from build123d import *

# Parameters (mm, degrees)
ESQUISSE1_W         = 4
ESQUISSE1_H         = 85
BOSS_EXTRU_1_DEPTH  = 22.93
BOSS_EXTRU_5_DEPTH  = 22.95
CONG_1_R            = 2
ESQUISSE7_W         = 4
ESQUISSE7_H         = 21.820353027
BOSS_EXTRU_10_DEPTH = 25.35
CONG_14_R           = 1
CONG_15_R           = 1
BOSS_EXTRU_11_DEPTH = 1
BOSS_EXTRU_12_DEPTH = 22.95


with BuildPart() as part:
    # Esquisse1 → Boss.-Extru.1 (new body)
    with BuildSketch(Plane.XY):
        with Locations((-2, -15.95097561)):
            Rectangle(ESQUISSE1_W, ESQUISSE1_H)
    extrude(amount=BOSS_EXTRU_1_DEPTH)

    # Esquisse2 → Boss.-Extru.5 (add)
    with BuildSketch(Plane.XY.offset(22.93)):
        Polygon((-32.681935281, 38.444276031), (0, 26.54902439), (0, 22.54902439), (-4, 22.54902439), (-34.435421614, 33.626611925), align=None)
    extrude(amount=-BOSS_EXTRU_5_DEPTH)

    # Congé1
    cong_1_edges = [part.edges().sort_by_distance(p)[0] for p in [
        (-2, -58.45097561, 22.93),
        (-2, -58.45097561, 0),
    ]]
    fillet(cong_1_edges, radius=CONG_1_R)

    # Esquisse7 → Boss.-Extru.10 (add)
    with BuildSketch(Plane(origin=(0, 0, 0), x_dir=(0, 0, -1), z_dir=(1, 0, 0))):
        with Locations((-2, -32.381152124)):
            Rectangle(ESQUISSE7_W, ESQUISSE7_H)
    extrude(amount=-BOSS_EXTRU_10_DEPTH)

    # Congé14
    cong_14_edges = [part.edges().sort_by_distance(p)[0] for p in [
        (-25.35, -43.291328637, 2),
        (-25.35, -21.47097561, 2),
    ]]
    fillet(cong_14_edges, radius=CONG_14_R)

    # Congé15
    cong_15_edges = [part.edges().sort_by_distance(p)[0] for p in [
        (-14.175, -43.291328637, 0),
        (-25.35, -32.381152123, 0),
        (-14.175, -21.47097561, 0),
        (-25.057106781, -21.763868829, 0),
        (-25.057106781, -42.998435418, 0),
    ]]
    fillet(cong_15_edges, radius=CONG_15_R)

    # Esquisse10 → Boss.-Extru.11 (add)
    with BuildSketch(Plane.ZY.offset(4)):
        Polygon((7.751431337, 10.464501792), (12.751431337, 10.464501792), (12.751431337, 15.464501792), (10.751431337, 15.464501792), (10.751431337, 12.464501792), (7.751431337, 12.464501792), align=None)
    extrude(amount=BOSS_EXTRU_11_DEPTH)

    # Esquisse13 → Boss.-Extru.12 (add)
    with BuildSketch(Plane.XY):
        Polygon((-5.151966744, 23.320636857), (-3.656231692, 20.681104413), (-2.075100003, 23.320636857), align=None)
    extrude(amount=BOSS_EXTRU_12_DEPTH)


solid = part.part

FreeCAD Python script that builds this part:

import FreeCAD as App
import Part
import Sketcher
from FreeCAD import Vector
Q = App.Units.Quantity


def edges_at(feature, points):
    """Names of the edges that pass closest to the given points."""
    edges = feature.Shape.Edges
    near = lambda p: min(range(len(edges)), key=lambda i: edges[i].distToShape(Part.Vertex(*p))[0])
    return sorted({f"Edge{near(p) + 1}" for p in points})

doc = App.newDocument("Part")
params = doc.addObject("Spreadsheet::Sheet", "Params")
for row, (alias, value) in enumerate([
    ("sketch1_width", "4 mm"),
    ("sketch1_height", "85 mm"),
    ("pad1_length", "22.93 mm"),
    ("sketch2_width", "4 mm"),
    ("pad2_length", "22.95 mm"),
    ("fillet_radius", "2 mm"),
    ("sketch3_height", "4 mm"),
    ("pad3_length", "25.35 mm"),
    ("fillet2_radius", "1 mm"),
    ("fillet3_radius", "1 mm"),
    ("sketch4_width", "5 mm"),
    ("sketch4_width2", "3 mm"),
    ("pad4_length", "1 mm"),
    ("pad5_length", "22.95 mm"),
], start=1):
    params.set(f"A{row}", alias)
    params.set(f"B{row}", "=" + value)
    params.setAlias(f"B{row}", alias)

body = doc.addObject("PartDesign::Body", "Body")

# Sketch on XY plane
sketch1 = doc.addObject("Sketcher::SketchObject", "Sketch")
body.addObject(sketch1)
sketch1.AttachmentSupport = (doc.XY_Plane, [""])
sketch1.MapMode = "FlatFace"
sketch1.addGeometry(Part.LineSegment(Vector(-4, 26.5, 0), Vector(-4, -58.5, 0)), False)
sketch1.addGeometry(Part.LineSegment(Vector(-4, -58.5, 0), Vector(0, -58.5, 0)), False)
sketch1.addGeometry(Part.LineSegment(Vector(0, -58.5, 0), Vector(0, 26.5, 0)), False)
sketch1.addGeometry(Part.LineSegment(Vector(0, 26.5, 0), Vector(-4, 26.5, 0)), False)
sketch1.addConstraint(Sketcher.Constraint("Coincident", 0, 2, 1, 1))
sketch1.addConstraint(Sketcher.Constraint("Coincident", 1, 2, 2, 1))
sketch1.addConstraint(Sketcher.Constraint("Coincident", 2, 2, 3, 1))
sketch1.addConstraint(Sketcher.Constraint("Coincident", 3, 2, 0, 1))
sketch1.addConstraint(Sketcher.Constraint("Vertical", 0))
sketch1.addConstraint(Sketcher.Constraint("Horizontal", 1))
sketch1.addConstraint(Sketcher.Constraint("Vertical", 2))
sketch1.addConstraint(Sketcher.Constraint("Horizontal", 3))
sketch1.addConstraint(Sketcher.Constraint("PointOnObject", 1, 2, -2))
sketch1.addConstraint(Sketcher.Constraint("DistanceX", 1, 1, 1, 2, Q("4 mm")))
sketch1.addConstraint(Sketcher.Constraint("DistanceY", 0, 2, 0, 1, Q("85 mm")))
sketch1.addConstraint(Sketcher.Constraint("DistanceY", 0, 2, -1, 1, Q("58.450976 mm")))
sketch1.setExpression("Constraints[9]", "Params.sketch1_width")
sketch1.setExpression("Constraints[10]", "Params.sketch1_height")
pad1 = doc.addObject("PartDesign::Pad", "Pad")
body.addObject(pad1)
pad1.Profile = sketch1
pad1.setExpression("Length", "Params.pad1_length")

# Sketch on XY plane
sketch2 = doc.addObject("Sketcher::SketchObject", "Sketch001")
body.addObject(sketch2)
sketch2.AttachmentSupport = (doc.XY_Plane, [""])
sketch2.MapMode = "FlatFace"
sketch2.AttachmentOffset = App.Placement(Vector(0, 0, 22.93), App.Rotation())
sketch2.addGeometry(Part.LineSegment(Vector(0, 26.5, 0), Vector(-32.7, 38.4, 0)), False)
sketch2.addGeometry(Part.LineSegment(Vector(-32.7, 38.4, 0), Vector(-34.4, 33.6, 0)), False)
sketch2.addGeometry(Part.LineSegment(Vector(-34.4, 33.6, 0), Vector(-4, 22.5, 0)), False)
sketch2.addGeometry(Part.LineSegment(Vector(-4, 22.5, 0), Vector(0, 22.5, 0)), False)
sketch2.addGeometry(Part.LineSegment(Vector(0, 22.5, 0), Vector(0, 26.5, 0)), False)
sketch2.addConstraint(Sketcher.Constraint("Coincident", 0, 2, 1, 1))
sketch2.addConstraint(Sketcher.Constraint("Coincident", 1, 2, 2, 1))
sketch2.addConstraint(Sketcher.Constraint("Coincident", 2, 2, 3, 1))
sketch2.addConstraint(Sketcher.Constraint("Coincident", 3, 2, 4, 1))
sketch2.addConstraint(Sketcher.Constraint("Coincident", 4, 2, 0, 1))
sketch2.addConstraint(Sketcher.Constraint("Horizontal", 3))
sketch2.addConstraint(Sketcher.Constraint("Vertical", 4))
sketch2.addConstraint(Sketcher.Constraint("PointOnObject", 3, 2, -2))
sketch2.addConstraint(Sketcher.Constraint("Perpendicular", 0, 1))
sketch2.addConstraint(Sketcher.Constraint("Perpendicular", 1, 2))
sketch2.addConstraint(Sketcher.Constraint("Equal", 3, 4))
sketch2.addConstraint(Sketcher.Constraint("DistanceX", 3, 1, 3, 2, Q("4 mm")))
sketch2.addConstraint(Sketcher.Constraint("Angle", 0, Q("160 deg")))
sketch2.addConstraint(Sketcher.Constraint("Distance", 2, Q("32.388699 mm")))
sketch2.addConstraint(Sketcher.Constraint("DistanceY", -1, 1, 1, 2, Q("33.626612 mm")))
sketch2.setExpression("Constraints[11]", "Params.sketch2_width")
pad2 = doc.addObject("PartDesign::Pad", "Pad001")
body.addObject(pad2)
pad2.Profile = sketch2
pad2.setExpression("Length", "Params.pad2_length")
pad2.Reversed = True
doc.recompute()

fillet = doc.addObject("PartDesign::Fillet", "Fillet")
body.addObject(fillet)
fillet.Base = (pad2, edges_at(pad2, [(-2, -58.451, 22.93), (-2, -58.451, 0)]))
fillet.setExpression("Radius", "Params.fillet_radius")

# Sketch on YZ plane
sketch3 = doc.addObject("Sketcher::SketchObject", "Sketch002")
body.addObject(sketch3)
sketch3.AttachmentSupport = (doc.YZ_Plane, [""])
sketch3.MapMode = "FlatFace"
sketch3.addGeometry(Part.LineSegment(Vector(-21.5, 4, 0), Vector(-43.3, 4, 0)), False)
sketch3.addGeometry(Part.LineSegment(Vector(-43.3, 4, 0), Vector(-43.3, 0, 0)), False)
sketch3.addGeometry(Part.LineSegment(Vector(-43.3, 0, 0), Vector(-21.5, 0, 0)), False)
sketch3.addGeometry(Part.LineSegment(Vector(-21.5, 0, 0), Vector(-21.5, 4, 0)), False)
sketch3.addConstraint(Sketcher.Constraint("Coincident", 0, 2, 1, 1))
sketch3.addConstraint(Sketcher.Constraint("Coincident", 1, 2, 2, 1))
sketch3.addConstraint(Sketcher.Constraint("Coincident", 2, 2, 3, 1))
sketch3.addConstraint(Sketcher.Constraint("Coincident", 3, 2, 0, 1))
sketch3.addConstraint(Sketcher.Constraint("Horizontal", 0))
sketch3.addConstraint(Sketcher.Constraint("Vertical", 1))
sketch3.addConstraint(Sketcher.Constraint("Horizontal", 2))
sketch3.addConstraint(Sketcher.Constraint("Vertical", 3))
sketch3.addConstraint(Sketcher.Constraint("PointOnObject", 1, 2, -1))
sketch3.addConstraint(Sketcher.Constraint("DistanceY", 1, 2, 1, 1, Q("4 mm")))
sketch3.addConstraint(Sketcher.Constraint("DistanceX", 0, 2, 0, 1, Q("21.820353 mm")))
sketch3.addConstraint(Sketcher.Constraint("DistanceX", 0, 2, -1, 1, Q("43.291329 mm")))
sketch3.setExpression("Constraints[9]", "Params.sketch3_height")
pad3 = doc.addObject("PartDesign::Pad", "Pad002")
body.addObject(pad3)
pad3.Profile = sketch3
pad3.setExpression("Length", "Params.pad3_length")
pad3.Reversed = True
doc.recompute()

fillet2 = doc.addObject("PartDesign::Fillet", "Fillet001")
body.addObject(fillet2)
fillet2.Base = (pad3, edges_at(pad3, [(-25.35, -43.291, 2), (-25.35, -21.471, 2)]))
fillet2.setExpression("Radius", "Params.fillet2_radius")
doc.recompute()

fillet3 = doc.addObject("PartDesign::Fillet", "Fillet002")
body.addObject(fillet3)
fillet3.Base = (fillet2, edges_at(fillet2, [
    (-14.175, -43.291, 0),
    (-25.35, -32.381, 0),
    (-14.175, -21.471, 0),
    (-25.057, -21.764, 0),
    (-25.057, -42.998, 0),
]))
fillet3.setExpression("Radius", "Params.fillet3_radius")

# Sketch on YZ plane
sketch4 = doc.addObject("Sketcher::SketchObject", "Sketch003")
body.addObject(sketch4)
sketch4.AttachmentSupport = (doc.YZ_Plane, [""])
sketch4.MapMode = "FlatFace"
sketch4.AttachmentOffset = App.Placement(Vector(0, 0, -4), App.Rotation())
sketch4.addGeometry(Part.LineSegment(Vector(10.5, 7.8, 0), Vector(10.5, 12.8, 0)), False)
sketch4.addGeometry(Part.LineSegment(Vector(10.5, 12.8, 0), Vector(15.5, 12.8, 0)), False)
sketch4.addGeometry(Part.LineSegment(Vector(15.5, 12.8, 0), Vector(15.5, 10.8, 0)), False)
sketch4.addGeometry(Part.LineSegment(Vector(15.5, 10.8, 0), Vector(12.5, 10.8, 0)), False)
sketch4.addGeometry(Part.LineSegment(Vector(12.5, 10.8, 0), Vector(12.5, 7.8, 0)), False)
sketch4.addGeometry(Part.LineSegment(Vector(12.5, 7.8, 0), Vector(10.5, 7.8, 0)), False)
sketch4.addConstraint(Sketcher.Constraint("Coincident", 0, 2, 1, 1))
sketch4.addConstraint(Sketcher.Constraint("Coincident", 1, 2, 2, 1))
sketch4.addConstraint(Sketcher.Constraint("Coincident", 2, 2, 3, 1))
sketch4.addConstraint(Sketcher.Constraint("Coincident", 3, 2, 4, 1))
sketch4.addConstraint(Sketcher.Constraint("Coincident", 4, 2, 5, 1))
sketch4.addConstraint(Sketcher.Constraint("Coincident", 5, 2, 0, 1))
sketch4.addConstraint(Sketcher.Constraint("Vertical", 0))
sketch4.addConstraint(Sketcher.Constraint("Horizontal", 1))
sketch4.addConstraint(Sketcher.Constraint("Vertical", 2))
sketch4.addConstraint(Sketcher.Constraint("Horizontal", 3))
sketch4.addConstraint(Sketcher.Constraint("Vertical", 4))
sketch4.addConstraint(Sketcher.Constraint("Horizontal", 5))
sketch4.addConstraint(Sketcher.Constraint("Equal", 1, 0))
sketch4.addConstraint(Sketcher.Constraint("Equal", 5, 2))
sketch4.addConstraint(Sketcher.Constraint("DistanceX", 1, 1, 1, 2, Q("5 mm")))
sketch4.addConstraint(Sketcher.Constraint("DistanceX", 3, 2, 3, 1, Q("3 mm")))
sketch4.addConstraint(Sketcher.Constraint("DistanceX", -1, 1, 0, 2, Q("10.464502 mm")))
sketch4.addConstraint(Sketcher.Constraint("DistanceY", -1, 1, 0, 2, Q("12.751431 mm")))
sketch4.setExpression("Constraints[14]", "Params.sketch4_width")
sketch4.setExpression("Constraints[15]", "Params.sketch4_width2")
pad4 = doc.addObject("PartDesign::Pad", "Pad003")
body.addObject(pad4)
pad4.Profile = sketch4
pad4.setExpression("Length", "Params.pad4_length")
pad4.Reversed = True

# Sketch on XY plane
sketch5 = doc.addObject("Sketcher::SketchObject", "Sketch004")
body.addObject(sketch5)
sketch5.AttachmentSupport = (doc.XY_Plane, [""])
sketch5.MapMode = "FlatFace"
sketch5.addGeometry(Part.LineSegment(Vector(-5.2, 23.3, 0), Vector(-3.7, 20.7, 0)), False)
sketch5.addGeometry(Part.LineSegment(Vector(-3.7, 20.7, 0), Vector(-2.1, 23.3, 0)), False)
sketch5.addGeometry(Part.LineSegment(Vector(-2.1, 23.3, 0), Vector(-5.2, 23.3, 0)), False)
sketch5.addConstraint(Sketcher.Constraint("Coincident", 0, 2, 1, 1))
sketch5.addConstraint(Sketcher.Constraint("Coincident", 1, 2, 2, 1))
sketch5.addConstraint(Sketcher.Constraint("Coincident", 2, 2, 0, 1))
sketch5.addConstraint(Sketcher.Constraint("Horizontal", 2))
sketch5.addConstraint(Sketcher.Constraint("DistanceX", 1, 2, -1, 1, Q("2.0751 mm")))
sketch5.addConstraint(Sketcher.Constraint("DistanceX", 2, 2, 2, 1, Q("3.076867 mm")))
sketch5.addConstraint(Sketcher.Constraint("DistanceX", 0, 2, -1, 1, Q("3.656232 mm")))
sketch5.addConstraint(Sketcher.Constraint("Distance", 0, Q("3.033868 mm")))
sketch5.addConstraint(Sketcher.Constraint("DistanceY", -1, 1, 0, 2, Q("20.681104 mm")))
pad5 = doc.addObject("PartDesign::Pad", "Pad004")
body.addObject(pad5)
pad5.Profile = sketch5
pad5.setExpression("Length", "Params.pad5_length")

doc.recompute()
